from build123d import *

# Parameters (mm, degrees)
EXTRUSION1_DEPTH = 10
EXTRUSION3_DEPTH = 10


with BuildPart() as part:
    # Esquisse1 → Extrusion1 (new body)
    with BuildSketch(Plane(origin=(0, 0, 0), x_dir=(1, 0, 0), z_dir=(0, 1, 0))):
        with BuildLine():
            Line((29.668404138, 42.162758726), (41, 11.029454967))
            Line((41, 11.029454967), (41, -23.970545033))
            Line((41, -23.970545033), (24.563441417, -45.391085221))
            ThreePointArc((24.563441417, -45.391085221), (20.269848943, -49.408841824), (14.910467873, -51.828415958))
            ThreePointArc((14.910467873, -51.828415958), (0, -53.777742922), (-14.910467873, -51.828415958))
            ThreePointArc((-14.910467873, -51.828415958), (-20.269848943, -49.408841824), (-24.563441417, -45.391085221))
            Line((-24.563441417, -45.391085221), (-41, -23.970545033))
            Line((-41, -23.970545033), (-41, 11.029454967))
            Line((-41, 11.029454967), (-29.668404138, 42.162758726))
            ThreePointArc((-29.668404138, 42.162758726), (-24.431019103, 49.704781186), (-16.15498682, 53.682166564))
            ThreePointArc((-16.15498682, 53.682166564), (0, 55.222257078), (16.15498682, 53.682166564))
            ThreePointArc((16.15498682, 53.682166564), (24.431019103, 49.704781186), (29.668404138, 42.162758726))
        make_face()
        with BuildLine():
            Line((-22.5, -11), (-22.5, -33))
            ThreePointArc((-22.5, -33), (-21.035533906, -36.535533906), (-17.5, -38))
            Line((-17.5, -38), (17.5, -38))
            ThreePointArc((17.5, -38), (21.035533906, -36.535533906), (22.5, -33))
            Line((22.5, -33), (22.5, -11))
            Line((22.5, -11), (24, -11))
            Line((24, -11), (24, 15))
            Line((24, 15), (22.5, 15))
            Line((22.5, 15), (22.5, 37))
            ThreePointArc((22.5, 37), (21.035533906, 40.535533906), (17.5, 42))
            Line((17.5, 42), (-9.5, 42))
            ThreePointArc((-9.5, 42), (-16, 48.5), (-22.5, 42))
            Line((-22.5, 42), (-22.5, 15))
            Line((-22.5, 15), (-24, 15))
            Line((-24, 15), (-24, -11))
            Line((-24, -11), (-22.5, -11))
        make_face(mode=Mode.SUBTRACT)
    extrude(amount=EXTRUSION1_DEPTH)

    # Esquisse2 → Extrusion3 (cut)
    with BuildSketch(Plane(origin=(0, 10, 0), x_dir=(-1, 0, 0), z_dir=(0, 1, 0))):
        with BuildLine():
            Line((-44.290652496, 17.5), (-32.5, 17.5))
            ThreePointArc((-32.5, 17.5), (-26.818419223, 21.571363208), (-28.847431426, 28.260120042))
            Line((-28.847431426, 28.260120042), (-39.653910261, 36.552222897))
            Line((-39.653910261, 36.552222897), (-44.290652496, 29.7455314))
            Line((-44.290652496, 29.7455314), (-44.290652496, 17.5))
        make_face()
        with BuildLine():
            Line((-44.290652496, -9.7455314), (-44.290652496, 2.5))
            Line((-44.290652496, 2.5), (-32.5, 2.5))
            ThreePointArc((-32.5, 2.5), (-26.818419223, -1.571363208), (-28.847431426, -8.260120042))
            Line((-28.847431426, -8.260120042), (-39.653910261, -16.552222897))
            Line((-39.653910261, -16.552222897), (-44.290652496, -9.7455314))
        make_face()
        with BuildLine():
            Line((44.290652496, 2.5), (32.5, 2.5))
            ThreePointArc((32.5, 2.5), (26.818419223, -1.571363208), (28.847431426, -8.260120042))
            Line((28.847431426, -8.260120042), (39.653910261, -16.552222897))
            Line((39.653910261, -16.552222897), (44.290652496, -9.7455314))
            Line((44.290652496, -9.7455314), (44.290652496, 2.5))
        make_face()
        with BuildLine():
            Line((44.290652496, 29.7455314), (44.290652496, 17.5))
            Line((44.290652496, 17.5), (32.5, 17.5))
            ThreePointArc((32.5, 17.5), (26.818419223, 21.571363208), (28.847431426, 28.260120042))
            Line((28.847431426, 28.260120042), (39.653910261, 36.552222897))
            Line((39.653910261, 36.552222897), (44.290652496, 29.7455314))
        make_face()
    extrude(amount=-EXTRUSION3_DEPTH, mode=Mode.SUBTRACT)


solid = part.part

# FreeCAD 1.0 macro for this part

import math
import FreeCAD as App
import Part
import Sketcher

V = App.Vector
Q = App.Units.Quantity

doc = App.newDocument("Part")
body = doc.addObject("PartDesign::Body", "Body")

sketch1 = doc.addObject("Sketcher::SketchObject", "Sketch")
body.addObject(sketch1)
sketch1.AttachmentSupport = (doc.XZ_Plane, [""])
sketch1.MapMode = "FlatFace"
sketch1.addGeometry([
    Part.LineSegment(V(41, -11, 0), V(29.7, -42.2, 0)),
    Part.ArcOfCircle(Part.Circle(V(12.8, -36, 0), V(0, 0, 1), 18), math.radians(-79), math.radians(-20)),
    Part.ArcOfCircle(Part.Circle(V(0, 30.3, 0), V(0, 0, 1), 85.5), math.radians(-101), math.radians(-79)),
    Part.ArcOfCircle(Part.Circle(V(-12.8, -36, 0), V(0, 0, 1), 18), math.radians(-160), math.radians(-101)),
    Part.LineSegment(V(-29.7, -42.2, 0), V(-41, -11, 0)),
    Part.LineSegment(V(-41, -11, 0), V(-41, 24, 0)),
    Part.LineSegment(V(-41, 24, 0), V(-24.6, 45.4, 0)),
    Part.ArcOfCircle(Part.Circle(V(-10.3, 34.4, 0), V(0, 0, 1), 18), math.radians(105), math.radians(142)),
    Part.ArcOfCircle(Part.Circle(V(0, -4.2, 0), V(0, 0, 1), 58), math.radians(75), math.radians(105)),
    Part.ArcOfCircle(Part.Circle(V(10.3, 34.4, 0), V(0, 0, 1), 18), math.radians(38), math.radians(75)),
    Part.LineSegment(V(24.6, 45.4, 0), V(41, 24, 0)),
    Part.LineSegment(V(41, 24, 0), V(41, -11, 0)),
    Part.LineSegment(V(-22.5, 11, 0), V(-24, 11, 0)),
    Part.LineSegment(V(-24, 11, 0), V(-24, -15, 0)),
    Part.LineSegment(V(-24, -15, 0), V(-22.5, -15, 0)),
    Part.LineSegment(V(-22.5, -15, 0), V(-22.5, -42, 0)),
    Part.ArcOfCircle(Part.Circle(V(-16, -42, 0), V(0, 0, 1), 6.5), math.radians(180), math.radians(360)),
    Part.LineSegment(V(-9.5, -42, 0), V(17.5, -42, 0)),
    Part.ArcOfCircle(Part.Circle(V(17.5, -37, 0), V(0, 0, 1), 5), math.radians(-90), math.radians(0)),
    Part.LineSegment(V(22.5, -37, 0), V(22.5, -15, 0)),
    Part.LineSegment(V(22.5, -15, 0), V(24, -15, 0)),
    Part.LineSegment(V(24, -15, 0), V(24, 11, 0)),
    Part.LineSegment(V(24, 11, 0), V(22.5, 11, 0)),
    Part.LineSegment(V(22.5, 11, 0), V(22.5, 33, 0)),
    Part.ArcOfCircle(Part.Circle(V(17.5, 33, 0), V(0, 0, 1), 5), math.radians(0), math.radians(90)),
    Part.LineSegment(V(17.5, 38, 0), V(-17.5, 38, 0)),
    Part.ArcOfCircle(Part.Circle(V(-17.5, 33, 0), V(0, 0, 1), 5), math.radians(90), math.radians(180)),
    Part.LineSegment(V(-22.5, 33, 0), V(-22.5, 11, 0)),
], False)
sketch1.addConstraint([
    Sketcher.Constraint("Tangent", 0, 2, 1, 2),
    Sketcher.Constraint("Tangent", 1, 1, 2, 2),
    Sketcher.Constraint("Tangent", 2, 1, 3, 2),
    Sketcher.Constraint("Tangent", 3, 1, 4, 1),
    Sketcher.Constraint("Coincident", 4, 2, 5, 1),
    Sketcher.Constraint("Coincident", 5, 2, 6, 1),
    Sketcher.Constraint("Tangent", 6, 2, 7, 2),
    Sketcher.Constraint("Tangent", 7, 1, 8, 2),
    Sketcher.Constraint("Tangent", 8, 1, 9, 2),
    Sketcher.Constraint("Tangent", 9, 1, 10, 1),
    Sketcher.Constraint("Coincident", 10, 2, 11, 1),
    Sketcher.Constraint("Coincident", 11, 2, 0, 1),
    Sketcher.Constraint("Coincident", 12, 2, 13, 1),
    Sketcher.Constraint("Coincident", 13, 2, 14, 1),
    Sketcher.Constraint("Coincident", 14, 2, 15, 1),
    Sketcher.Constraint("Tangent", 15, 2, 16, 1),
    Sketcher.Constraint("Coincident", 16, 2, 17, 1),
    Sketcher.Constraint("Tangent", 17, 2, 18, 1),
    Sketcher.Constraint("Tangent", 18, 2, 19, 1),
    Sketcher.Constraint("Coincident", 19, 2, 20, 1),
    Sketcher.Constraint("Coincident", 20, 2, 21, 1),
    Sketcher.Constraint("Coincident", 21, 2, 22, 1),
    Sketcher.Constraint("Coincident", 22, 2, 23, 1),
    Sketcher.Constraint("Tangent", 23, 2, 24, 1),
    Sketcher.Constraint("Tangent", 24, 2, 25, 1),
    Sketcher.Constraint("Tangent", 25, 2, 26, 1),
    Sketcher.Constraint("Tangent", 26, 2, 27, 1),
    Sketcher.Constraint("Coincident", 27, 2, 12, 1),
    Sketcher.Constraint("Vertical", 5),
    Sketcher.Constraint("Vertical", 11),
    Sketcher.Constraint("Horizontal", 12),
    Sketcher.Constraint("Vertical", 13),
    Sketcher.Constraint("Horizontal", 14),
    Sketcher.Constraint("Vertical", 15),
    Sketcher.Constraint("Horizontal", 17),
    Sketcher.Constraint("Vertical", 19),
    Sketcher.Constraint("Horizontal", 20),
    Sketcher.Constraint("Vertical", 21),
    Sketcher.Constraint("Horizontal", 22),
    Sketcher.Constraint("Vertical", 23),
    Sketcher.Constraint("Horizontal", 25),
    Sketcher.Constraint("Vertical", 27),
    Sketcher.Constraint("Equal", 1, 3),
    Sketcher.Constraint("Equal", 3, 7),
    Sketcher.Constraint("Equal", 7, 9),
    Sketcher.Constraint("Equal", 18, 24),
    Sketcher.Constraint("Equal", 24, 26),
    Sketcher.Constraint("Symmetric", 1, 3, 3, 3, -2),
    Sketcher.Constraint("Symmetric", 7, 3, 9, 3, -2),
    Sketcher.Constraint("Symmetric", 5, 2, 10, 2, -2),
    Sketcher.Constraint("Symmetric", 14, 2, 19, 2, -2),
    Sketcher.Constraint("Symmetric", 12, 2, 21, 2, -2),
    Sketcher.Constraint("Horizontal", 0, 2, 3, 1),
    Sketcher.Constraint("Horizontal", 15, 2, 16, 2),
    Sketcher.Constraint("Vertical", 18, 3, 24, 3),
    Sketcher.Constraint("Vertical", 15, 2, 26, 2),
    Sketcher.Constraint("Equal", 25, 5),
    Sketcher.Constraint("Equal", 17, 15),
    Sketcher.Constraint("Equal", 19, 23),
    Sketcher.Constraint("Radius", 1, Q("18 mm")),
    Sketcher.Constraint("Radius", 8, Q("58 mm")),
    Sketcher.Constraint("Radius", 18, Q("5 mm")),
    Sketcher.Constraint("Radius", 2, Q("85.5 mm")),
    Sketcher.Constraint("Radius", 16, Q("6.5 mm")),
    Sketcher.Constraint("DistanceX", 17, 1, 17, 2, Q("27 mm")),
    Sketcher.Constraint("DistanceY", 13, 2, 13, 1, Q("26 mm")),
    Sketcher.Constraint("Angle", 0, Q("-110 deg")),
    Sketcher.Constraint("Distance", 6, Q("27 mm")),
    Sketcher.Constraint("DistanceX", 12, 2, 12, 1, Q("1.5 mm")),
    Sketcher.Constraint("DistanceY", 16, 3, -1, 1, Q("42 mm")),
    Sketcher.Constraint("DistanceX", 4, 2, -1, 1, Q("41 mm")),
    Sketcher.Constraint("Angle", 6, Q("52.5 deg")),
    Sketcher.Constraint("DistanceY", 8, 3, 2, 3, Q("34.5 mm")),
    Sketcher.Constraint("DistanceY", -1, 1, 7, 3, Q("34.433379 mm")),
])
pad1 = doc.addObject("PartDesign::Pad", "Pad")
body.addObject(pad1)
pad1.Profile = sketch1
pad1.Length = 10
pad1.Reversed = True

sketch2 = doc.addObject("Sketcher::SketchObject", "Sketch001")
body.addObject(sketch2)
sketch2.AttachmentSupport = (doc.XZ_Plane, [""])
sketch2.MapMode = "FlatFace"
sketch2.AttachmentOffset = App.Placement(V(0, 0, -10), App.Rotation())
sketch2.addGeometry([
    Part.LineSegment(V(44, 18, 0), V(32, 18, 0)),
    Part.ArcOfCircle(Part.Circle(V(32, 24, 0), V(0, 0, 1), 6), math.radians(127), math.radians(270)),
    Part.LineSegment(V(29, 28, 0), V(40, 37, 0)),
    Part.LineSegment(V(40, 37, 0), V(44, 30, 0)),
    Part.LineSegment(V(44, 30, 0), V(44, 18, 0)),
    Part.LineSegment(V(44, 2, 0), V(44, -10, 0)),
    Part.LineSegment(V(44, -10, 0), V(40, -17, 0)),
    Part.LineSegment(V(40, -17, 0), V(29, -8, 0)),
    Part.ArcOfCircle(Part.Circle(V(32, -4, 0), V(0, 0, 1), 6), math.radians(90), math.radians(233)),
    Part.LineSegment(V(32, 2, 0), V(44, 2, 0)),
    Part.LineSegment(V(-44, 2, 0), V(-32, 2, 0)),
    Part.ArcOfCircle(Part.Circle(V(-32, -4, 0), V(0, 0, 1), 6), math.radians(-53), math.radians(90)),
    Part.LineSegment(V(-29, -8, 0), V(-40, -17, 0)),
    Part.LineSegment(V(-40, -17, 0), V(-44, -10, 0)),
    Part.LineSegment(V(-44, -10, 0), V(-44, 2, 0)),
    Part.LineSegment(V(-44, 18, 0), V(-44, 30, 0)),
    Part.LineSegment(V(-44, 30, 0), V(-40, 37, 0)),
    Part.LineSegment(V(-40, 37, 0), V(-29, 28, 0)),
    Part.ArcOfCircle(Part.Circle(V(-32, 24, 0), V(0, 0, 1), 6), math.radians(-90), math.radians(53)),
    Part.LineSegment(V(-32, 18, 0), V(-44, 18, 0)),
], False)
sketch2.addConstraint([
    Sketcher.Constraint("Tangent", 0, 2, 1, 2),
    Sketcher.Constraint("Tangent", 1, 1, 2, 1),
    Sketcher.Constraint("Coincident", 2, 2, 3, 1),
    Sketcher.Constraint("Coincident", 3, 2, 4, 1),
    Sketcher.Constraint("Coincident", 4, 2, 0, 1),
    Sketcher.Constraint("Coincident", 5, 2, 6, 1),
    Sketcher.Constraint("Coincident", 6, 2, 7, 1),
    Sketcher.Constraint("Tangent", 7, 2, 8, 2),
    Sketcher.Constraint("Tangent", 8, 1, 9, 1),
    Sketcher.Constraint("Coincident", 9, 2, 5, 1),
    Sketcher.Constraint("Tangent", 10, 2, 11, 2),
    Sketcher.Constraint("Tangent", 11, 1, 12, 1),
    Sketcher.Constraint("Coincident", 12, 2, 13, 1),
    Sketcher.Constraint("Coincident", 13, 2, 14, 1),
    Sketcher.Constraint("Coincident", 14, 2, 10, 1),
    Sketcher.Constraint("Coincident", 15, 2, 16, 1),
    Sketcher.Constraint("Coincident", 16, 2, 17, 1),
    Sketcher.Constraint("Tangent", 17, 2, 18, 2),
    Sketcher.Constraint("Tangent", 18, 1, 19, 1),
    Sketcher.Constraint("Coincident", 19, 2, 15, 1),
    Sketcher.Constraint("Horizontal", 0),
    Sketcher.Constraint("Vertical", 4),
    Sketcher.Constraint("Vertical", 5),
    Sketcher.Constraint("Horizontal", 9),
    Sketcher.Constraint("Horizontal", 10),
    Sketcher.Constraint("Vertical", 14),
    Sketcher.Constraint("Vertical", 15),
    Sketcher.Constraint("Horizontal", 19),
    Sketcher.Constraint("Equal", 1, 8),
    Sketcher.Constraint("Equal", 8, 11),
    Sketcher.Constraint("Equal", 11, 18),
    Sketcher.Constraint("Symmetric", 8, 3, 11, 3, -2),
    Sketcher.Constraint("Symmetric", 1, 3, 18, 3, -2),
    Sketcher.Constraint("Symmetric", 6, 2, 12, 2, -2),
    Sketcher.Constraint("Symmetric", 5, 2, 13, 2, -2),
    Sketcher.Constraint("Symmetric", 3, 2, 15, 2, -2),
    Sketcher.Constraint("Symmetric", 2, 2, 16, 2, -2),
    Sketcher.Constraint("Parallel", 2, 12),
    Sketcher.Constraint("Parallel", 3, 13),
    Sketcher.Constraint("Vertical", 1, 3, 8, 3),
    Sketcher.Constraint("Vertical", 4, 2, 5, 2),
    Sketcher.Constraint("Vertical", 2, 2, 6, 2),
    Sketcher.Constraint("Radius", 1, Q("6 mm")),
    Sketcher.Constraint("Angle", 2, Q("37.5 deg")),
    Sketcher.Constraint("DistanceY", 8, 3, 1, 3, Q("27 mm")),
    Sketcher.Constraint("DistanceX", 11, 3, 8, 3, Q("65 mm")),
    Sketcher.Constraint("DistanceY", -1, 1, 1, 3, Q("23.5 mm")),
    Sketcher.Constraint("DistanceY", 4, 2, 4, 1, Q("12.245531 mm")),
    Sketcher.Constraint("Distance", 2, Q("13.621268 mm")),
    Sketcher.Constraint("DistanceX", 0, 2, 0, 1, Q("11.790652 mm")),
])
pocket1 = doc.addObject("PartDesign::Pocket", "Pocket")
body.addObject(pocket1)
pocket1.Profile = sketch2
pocket1.Length = 10
pocket1.Reversed = True

doc.recompute()
